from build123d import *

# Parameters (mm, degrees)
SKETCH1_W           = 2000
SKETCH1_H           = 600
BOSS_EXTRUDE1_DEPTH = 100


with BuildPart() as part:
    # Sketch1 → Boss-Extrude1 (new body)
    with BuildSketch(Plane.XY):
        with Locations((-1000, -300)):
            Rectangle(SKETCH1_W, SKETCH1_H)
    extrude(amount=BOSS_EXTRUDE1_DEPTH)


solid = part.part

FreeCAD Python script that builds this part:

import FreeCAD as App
import Part
import Sketcher
Q = App.Units.Quantity

doc = App.newDocument("Part")
body = doc.addObject("PartDesign::Body", "Body")

sketch1 = body.newObject("Sketcher::SketchObject", "Sketch")
sketch1.AttachmentSupport = (doc.getObject("XY_Plane"), [""])
sketch1.MapMode = "FlatFace"
sketch1.addGeometry([
    Part.LineSegment(App.Vector(-2000, 0, 0), App.Vector(-2000, -600, 0)),
    Part.LineSegment(App.Vector(-2000, -600, 0), App.Vector(0, -600, 0)),
    Part.LineSegment(App.Vector(0, -600, 0), App.Vector(0, 0, 0)),
    Part.LineSegment(App.Vector(0, 0, 0), App.Vector(-2000, 0, 0)),
], False)
sketch1.addConstraint([
    Sketcher.Constraint("Coincident", 0, 2, 1, 1),
    Sketcher.Constraint("Coincident", 1, 2, 2, 1),
    Sketcher.Constraint("Coincident", 2, 2, 3, 1),
    Sketcher.Constraint("Coincident", 3, 2, 0, 1),
    Sketcher.Constraint("Vertical", 0),
    Sketcher.Constraint("Horizontal", 1),
    Sketcher.Constraint("Vertical", 2),
    Sketcher.Constraint("Horizontal", 3),
    Sketcher.Constraint("Coincident", 2, 2, -1, 1),
    Sketcher.Constraint("DistanceX", 1, 1, 1, 2, Q("2000 mm")),
    Sketcher.Constraint("DistanceY", 0, 2, 0, 1, Q("600 mm")),
])
pad1 = body.newObject("PartDesign::Pad", "Pad")
pad1.Profile = sketch1
pad1.Length = 100

doc.recompute()
